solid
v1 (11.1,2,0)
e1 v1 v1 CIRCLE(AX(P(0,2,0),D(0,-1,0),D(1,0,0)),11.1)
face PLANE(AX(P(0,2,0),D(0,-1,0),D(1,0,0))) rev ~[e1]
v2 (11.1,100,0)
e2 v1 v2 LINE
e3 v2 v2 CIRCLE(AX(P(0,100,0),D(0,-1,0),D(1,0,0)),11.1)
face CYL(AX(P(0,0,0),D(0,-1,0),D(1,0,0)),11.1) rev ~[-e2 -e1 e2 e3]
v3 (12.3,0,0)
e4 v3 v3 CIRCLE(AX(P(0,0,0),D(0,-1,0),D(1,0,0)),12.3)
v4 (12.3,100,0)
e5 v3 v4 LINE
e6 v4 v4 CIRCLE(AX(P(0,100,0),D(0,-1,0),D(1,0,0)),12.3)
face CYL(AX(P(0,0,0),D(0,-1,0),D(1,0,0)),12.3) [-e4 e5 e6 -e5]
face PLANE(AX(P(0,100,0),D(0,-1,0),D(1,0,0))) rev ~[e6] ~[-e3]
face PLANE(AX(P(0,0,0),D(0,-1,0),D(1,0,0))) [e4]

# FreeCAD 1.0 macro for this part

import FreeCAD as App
import Part
import Sketcher
from FreeCAD import Vector
Q = App.Units.Quantity

doc = App.newDocument("Part")
body = doc.addObject("PartDesign::Body", "Body")

sketch1 = body.newObject("Sketcher::SketchObject", "Sketch")
sketch1.AttachmentSupport = (doc.getObject("XZ_Plane"), [""])
sketch1.MapMode = "FlatFace"
sketch1.addGeometry([
    Part.Circle(Vector(0, 0, 0), Vector(0, 0, 1), 12),
    Part.Circle(Vector(0, 0, 0), Vector(0, 0, 1), 11),
], False)
sketch1.addConstraint([
    Sketcher.Constraint("Coincident", 0, 3, -1, 1),
    Sketcher.Constraint("Coincident", 1, 3, -1, 1),
    Sketcher.Constraint("Diameter", 0, Q("24.6 mm")),
    Sketcher.Constraint("Diameter", 1, Q("22.2 mm")),
])
pad1 = body.newObject("PartDesign::Pad", "Pad")
pad1.Profile = sketch1
pad1.Length = 100
pad1.Reversed = True

sketch2 = body.newObject("Sketcher::SketchObject", "Sketch001")
sketch2.AttachmentSupport = (doc.getObject("XZ_Plane"), [""])
sketch2.MapMode = "FlatFace"
sketch2.addGeometry(Part.Circle(Vector(0, 0, 0), Vector(0, 0, 1), 11), False)
sketch2.addConstraint([
    Sketcher.Constraint("Coincident", 0, 3, -1, 1),
    Sketcher.Constraint("Diameter", 0, Q("22.2 mm")),
])
pad2 = body.newObject("PartDesign::Pad", "Pad001")
pad2.Profile = sketch2
pad2.Length = 2
pad2.Reversed = True

doc.recompute()
